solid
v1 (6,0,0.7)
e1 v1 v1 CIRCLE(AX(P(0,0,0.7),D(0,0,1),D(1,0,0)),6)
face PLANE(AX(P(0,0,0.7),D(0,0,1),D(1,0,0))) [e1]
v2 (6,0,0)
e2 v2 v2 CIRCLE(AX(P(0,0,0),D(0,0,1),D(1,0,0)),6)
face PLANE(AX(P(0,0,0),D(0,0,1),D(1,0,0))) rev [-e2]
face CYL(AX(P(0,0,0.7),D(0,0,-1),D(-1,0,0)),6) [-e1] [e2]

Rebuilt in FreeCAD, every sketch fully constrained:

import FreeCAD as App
import Part
import Sketcher

doc = App.newDocument("Part")
body = doc.addObject("PartDesign::Body", "Body")

# Sketch on XY plane
sketch1 = body.newObject("Sketcher::SketchObject", "Sketch")
sketch1.AttachmentSupport = (doc.getObject("XY_Plane"), [""])
sketch1.MapMode = "FlatFace"
sketch1.addGeometry(Part.Circle(App.Vector(0, 0, 0), App.Vector(0, 0, 1), 6), False)
sketch1.addConstraint([
    Sketcher.Constraint("Coincident", 0, 3, -1, 1),
    Sketcher.Constraint("Diameter", 0, 12.0),
])
pad1 = body.newObject("PartDesign::Pad", "Pad")
pad1.Profile = sketch1
pad1.Length = 0.7

doc.recompute()
